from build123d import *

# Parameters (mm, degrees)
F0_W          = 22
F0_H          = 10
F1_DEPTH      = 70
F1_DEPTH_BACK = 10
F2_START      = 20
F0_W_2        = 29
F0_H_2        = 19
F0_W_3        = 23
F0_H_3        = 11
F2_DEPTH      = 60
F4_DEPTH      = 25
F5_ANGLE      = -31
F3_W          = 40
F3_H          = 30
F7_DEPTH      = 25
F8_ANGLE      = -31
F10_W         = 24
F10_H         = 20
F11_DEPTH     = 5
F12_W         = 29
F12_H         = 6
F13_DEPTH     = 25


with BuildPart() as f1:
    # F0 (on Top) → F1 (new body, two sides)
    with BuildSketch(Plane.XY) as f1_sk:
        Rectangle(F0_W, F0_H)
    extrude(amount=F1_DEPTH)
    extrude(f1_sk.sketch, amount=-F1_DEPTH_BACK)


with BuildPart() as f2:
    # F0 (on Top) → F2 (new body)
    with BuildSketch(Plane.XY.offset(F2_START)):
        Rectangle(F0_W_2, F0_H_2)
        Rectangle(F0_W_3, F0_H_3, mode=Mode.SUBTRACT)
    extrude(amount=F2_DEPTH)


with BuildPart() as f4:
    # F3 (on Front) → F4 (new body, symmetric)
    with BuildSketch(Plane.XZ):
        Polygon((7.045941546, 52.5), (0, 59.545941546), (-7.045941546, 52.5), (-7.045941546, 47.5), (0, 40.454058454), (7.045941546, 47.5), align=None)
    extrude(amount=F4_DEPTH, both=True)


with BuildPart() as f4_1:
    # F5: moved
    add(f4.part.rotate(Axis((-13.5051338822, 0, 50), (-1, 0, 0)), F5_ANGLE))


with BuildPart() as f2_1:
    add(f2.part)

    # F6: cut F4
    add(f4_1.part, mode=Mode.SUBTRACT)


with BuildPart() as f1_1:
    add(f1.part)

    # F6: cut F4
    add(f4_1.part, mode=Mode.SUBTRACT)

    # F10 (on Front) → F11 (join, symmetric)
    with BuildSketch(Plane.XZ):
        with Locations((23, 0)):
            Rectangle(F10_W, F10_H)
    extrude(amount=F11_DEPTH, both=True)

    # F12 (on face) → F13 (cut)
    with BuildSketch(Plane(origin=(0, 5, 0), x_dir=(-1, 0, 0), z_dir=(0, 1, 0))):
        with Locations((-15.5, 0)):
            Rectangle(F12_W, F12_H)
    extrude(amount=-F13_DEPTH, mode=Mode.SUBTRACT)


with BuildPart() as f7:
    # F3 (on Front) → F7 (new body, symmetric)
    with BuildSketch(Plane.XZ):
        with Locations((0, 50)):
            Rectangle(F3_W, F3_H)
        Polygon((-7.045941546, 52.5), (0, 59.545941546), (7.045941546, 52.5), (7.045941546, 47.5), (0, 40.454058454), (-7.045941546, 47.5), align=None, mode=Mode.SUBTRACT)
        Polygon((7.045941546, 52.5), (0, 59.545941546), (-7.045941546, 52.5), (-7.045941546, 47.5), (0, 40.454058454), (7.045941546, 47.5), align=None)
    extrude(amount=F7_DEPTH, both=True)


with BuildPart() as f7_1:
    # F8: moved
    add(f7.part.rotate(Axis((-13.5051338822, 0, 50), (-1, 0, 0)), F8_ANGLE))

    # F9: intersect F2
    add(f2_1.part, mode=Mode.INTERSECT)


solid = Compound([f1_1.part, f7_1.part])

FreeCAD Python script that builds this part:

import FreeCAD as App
import Part
import Sketcher
from FreeCAD import Vector
Q = App.Units.Quantity

doc = App.newDocument("Part")
body = doc.addObject("PartDesign::Body", "Body")

# Sketch on XY plane
sketch1 = body.newObject("Sketcher::SketchObject", "Sketch")
sketch1.AttachmentSupport = (doc.getObject("XY_Plane"), [""])
sketch1.MapMode = "FlatFace"
sketch1.addGeometry([
    Part.LineSegment(Vector(-11, 5, 0), Vector(-11, -5, 0)),
    Part.LineSegment(Vector(-11, -5, 0), Vector(11, -5, 0)),
    Part.LineSegment(Vector(11, -5, 0), Vector(11, 5, 0)),
    Part.LineSegment(Vector(11, 5, 0), Vector(-11, 5, 0)),
], False)
sketch1.addConstraint([
    Sketcher.Constraint("Coincident", 0, 2, 1, 1),
    Sketcher.Constraint("Coincident", 1, 2, 2, 1),
    Sketcher.Constraint("Coincident", 2, 2, 3, 1),
    Sketcher.Constraint("Coincident", 3, 2, 0, 1),
    Sketcher.Constraint("Vertical", 0),
    Sketcher.Constraint("Horizontal", 1),
    Sketcher.Constraint("Vertical", 2),
    Sketcher.Constraint("Horizontal", 3),
    Sketcher.Constraint("Symmetric", 0, 2, 2, 2, -1, 1),
    Sketcher.Constraint("DistanceX", 1, 1, 1, 2, Q("22 mm")),
    Sketcher.Constraint("DistanceY", 0, 2, 0, 1, Q("10 mm")),
])
pad1 = body.newObject("PartDesign::Pad", "Pad")
pad1.Profile = sketch1
pad1.Type = "TwoLengths"
pad1.Length = 70
pad1.Length2 = 10
body2 = doc.addObject("PartDesign::Body", "Body001")

# Sketch on XY plane
sketch2 = body2.newObject("Sketcher::SketchObject", "Sketch001")
sketch2.AttachmentSupport = (doc.getObject("XY_Plane001"), [""])
sketch2.MapMode = "FlatFace"
sketch2.AttachmentOffset = App.Placement(Vector(0, 0, 20), App.Rotation())
sketch2.addGeometry([
    Part.LineSegment(Vector(-14, 10, 0), Vector(-14, -10, 0)),  # 0
    Part.LineSegment(Vector(-14, -10, 0), Vector(14, -10, 0)),  # 1
    Part.LineSegment(Vector(14, -10, 0), Vector(14, 10, 0)),  # 2
    Part.LineSegment(Vector(14, 10, 0), Vector(-14, 10, 0)),  # 3
    Part.LineSegment(Vector(12, -6, 0), Vector(-12, -6, 0)),  # 4
    Part.LineSegment(Vector(-12, -6, 0), Vector(-12, 6, 0)),  # 5
    Part.LineSegment(Vector(-12, 6, 0), Vector(12, 6, 0)),  # 6
    Part.LineSegment(Vector(12, 6, 0), Vector(12, -6, 0)),  # 7
], False)
sketch2.addConstraint([
    Sketcher.Constraint("Coincident", 0, 2, 1, 1),
    Sketcher.Constraint("Coincident", 1, 2, 2, 1),
    Sketcher.Constraint("Coincident", 2, 2, 3, 1),
    Sketcher.Constraint("Coincident", 3, 2, 0, 1),
    Sketcher.Constraint("Coincident", 4, 2, 5, 1),
    Sketcher.Constraint("Coincident", 5, 2, 6, 1),
    Sketcher.Constraint("Coincident", 6, 2, 7, 1),
    Sketcher.Constraint("Coincident", 7, 2, 4, 1),
    Sketcher.Constraint("Vertical", 0),
    Sketcher.Constraint("Horizontal", 1),
    Sketcher.Constraint("Vertical", 2),
    Sketcher.Constraint("Horizontal", 3),
    Sketcher.Constraint("Horizontal", 4),
    Sketcher.Constraint("Vertical", 5),
    Sketcher.Constraint("Horizontal", 6),
    Sketcher.Constraint("Vertical", 7),
    Sketcher.Constraint("Symmetric", 0, 2, 2, 2, -1, 1),
    Sketcher.Constraint("Symmetric", 4, 2, 6, 2, -1, 1),
    Sketcher.Constraint("DistanceX", 1, 1, 1, 2, Q("29 mm")),
    Sketcher.Constraint("DistanceX", 4, 2, 4, 1, Q("23 mm")),
    Sketcher.Constraint("DistanceY", 0, 2, 0, 1, Q("19 mm")),
    Sketcher.Constraint("DistanceY", 5, 1, 5, 2, Q("11 mm")),
])
pad2 = body2.newObject("PartDesign::Pad", "Pad001")
pad2.Profile = sketch2
pad2.Length = 60
body3 = doc.addObject("PartDesign::Body", "Body002")

# Sketch on XZ plane
sketch3 = body3.newObject("Sketcher::SketchObject", "Sketch002")
sketch3.AttachmentSupport = (doc.getObject("XZ_Plane002"), [""])
sketch3.MapMode = "FlatFace"
sketch3.addGeometry([
    Part.LineSegment(Vector(7, 52, 0), Vector(0, 60, 0)),  # 0
    Part.LineSegment(Vector(0, 60, 0), Vector(-7, 52, 0)),  # 1
    Part.LineSegment(Vector(-7, 52, 0), Vector(-7, 48, 0)),  # 2
    Part.LineSegment(Vector(-7, 48, 0), Vector(0, 40, 0)),  # 3
    Part.LineSegment(Vector(0, 40, 0), Vector(7, 48, 0)),  # 4
    Part.LineSegment(Vector(7, 48, 0), Vector(7, 52, 0)),  # 5
], False)
sketch3.addConstraint([
    Sketcher.Constraint("Coincident", 0, 2, 1, 1),
    Sketcher.Constraint("Coincident", 1, 2, 2, 1),
    Sketcher.Constraint("Coincident", 2, 2, 3, 1),
    Sketcher.Constraint("Coincident", 3, 2, 4, 1),
    Sketcher.Constraint("Coincident", 4, 2, 5, 1),
    Sketcher.Constraint("Coincident", 5, 2, 0, 1),
    Sketcher.Constraint("Vertical", 2),
    Sketcher.Constraint("Vertical", 5),
    Sketcher.Constraint("Symmetric", 2, 2, 4, 2, -2),
    Sketcher.Constraint("PointOnObject", 0, 2, -2),
    Sketcher.Constraint("PointOnObject", 3, 2, -2),
    Sketcher.Constraint("Perpendicular", 0, 1),
    Sketcher.Constraint("Perpendicular", 1, 3),
    Sketcher.Constraint("Perpendicular", 3, 4),
    Sketcher.Constraint("DistanceY", 2, 2, 2, 1, Q("5 mm")),
    Sketcher.Constraint("DistanceY", -1, 1, 1, 2, Q("52.5 mm")),
    Sketcher.Constraint("DistanceY", -1, 1, 0, 2, Q("59.545942 mm")),
])
pad3 = body3.newObject("PartDesign::Pad", "Pad002")
pad3.Profile = sketch3
pad3.Length = 50
pad3.Midplane = True
body4 = doc.addObject("PartDesign::Body", "Body003")
doc.recompute()

body3.Placement = App.Placement(Vector(0, 25.751904, 7.141635), App.Rotation(Vector(-1, 0, 0), 329))
boolean = body4.newObject("PartDesign::Boolean", "Boolean")
boolean.Type = "Fuse"
boolean.addObjects([body3])
doc.recompute()

body5 = doc.addObject("PartDesign::Body", "Body004")
body5.BaseFeature = body4
boolean2 = body2.newObject("PartDesign::Boolean", "Boolean001")
boolean2.Type = "Cut"
boolean2.addObjects([body5])
doc.recompute()

boolean3 = body.newObject("PartDesign::Boolean", "Boolean002")
boolean3.Type = "Cut"
boolean3.addObjects([body4])

# Sketch on XZ plane
sketch4 = body.newObject("Sketcher::SketchObject", "Sketch003")
sketch4.AttachmentSupport = (doc.getObject("XZ_Plane"), [""])
sketch4.MapMode = "FlatFace"
sketch4.addGeometry([
    Part.LineSegment(Vector(11, 10, 0), Vector(11, -10, 0)),
    Part.LineSegment(Vector(11, -10, 0), Vector(35, -10, 0)),
    Part.LineSegment(Vector(35, -10, 0), Vector(35, 10, 0)),
    Part.LineSegment(Vector(35, 10, 0), Vector(11, 10, 0)),
], False)
sketch4.addConstraint([
    Sketcher.Constraint("Coincident", 0, 2, 1, 1),
    Sketcher.Constraint("Coincident", 1, 2, 2, 1),
    Sketcher.Constraint("Coincident", 2, 2, 3, 1),
    Sketcher.Constraint("Coincident", 3, 2, 0, 1),
    Sketcher.Constraint("Vertical", 0),
    Sketcher.Constraint("Horizontal", 1),
    Sketcher.Constraint("Vertical", 2),
    Sketcher.Constraint("Horizontal", 3),
    Sketcher.Constraint("DistanceX", 1, 1, 1, 2, Q("24 mm")),
    Sketcher.Constraint("DistanceY", 0, 2, 0, 1, Q("20 mm")),
    Sketcher.Constraint("DistanceX", -1, 1, 0, 2, Q("11 mm")),
    Sketcher.Constraint("DistanceY", 0, 2, -1, 1, Q("10 mm")),
])
pad4 = body.newObject("PartDesign::Pad", "Pad003")
pad4.Profile = sketch4
pad4.Length = 10
pad4.Midplane = True

# Sketch on XZ plane
sketch5 = body.newObject("Sketcher::SketchObject", "Sketch004")
sketch5.AttachmentSupport = (doc.getObject("XZ_Plane"), [""])
sketch5.MapMode = "FlatFace"
sketch5.AttachmentOffset = App.Placement(Vector(0, 0, -5), App.Rotation())
sketch5.addGeometry([
    Part.LineSegment(Vector(30, 3, 0), Vector(30, -3, 0)),
    Part.LineSegment(Vector(30, -3, 0), Vector(1, -3, 0)),
    Part.LineSegment(Vector(1, -3, 0), Vector(1, 3, 0)),
    Part.LineSegment(Vector(1, 3, 0), Vector(30, 3, 0)),
], False)
sketch5.addConstraint([
    Sketcher.Constraint("Coincident", 0, 2, 1, 1),
    Sketcher.Constraint("Coincident", 1, 2, 2, 1),
    Sketcher.Constraint("Coincident", 2, 2, 3, 1),
    Sketcher.Constraint("Coincident", 3, 2, 0, 1),
    Sketcher.Constraint("Vertical", 0),
    Sketcher.Constraint("Horizontal", 1),
    Sketcher.Constraint("Vertical", 2),
    Sketcher.Constraint("Horizontal", 3),
    Sketcher.Constraint("DistanceX", 1, 2, 1, 1, Q("29 mm")),
    Sketcher.Constraint("DistanceY", 0, 2, 0, 1, Q("6 mm")),
    Sketcher.Constraint("DistanceX", -1, 1, 0, 2, Q("30 mm")),
    Sketcher.Constraint("DistanceY", 0, 2, -1, 1, Q("3 mm")),
])
pocket1 = body.newObject("PartDesign::Pocket", "Pocket")
pocket1.Profile = sketch5
pocket1.Length = 25
pocket1.Reversed = True
body6 = doc.addObject("PartDesign::Body", "Body005")

# Sketch on XZ plane
sketch6 = body6.newObject("Sketcher::SketchObject", "Sketch005")
sketch6.AttachmentSupport = (doc.getObject("XZ_Plane005"), [""])
sketch6.MapMode = "FlatFace"
sketch6.addGeometry([
    Part.LineSegment(Vector(-20, 65, 0), Vector(-20, 35, 0)),
    Part.LineSegment(Vector(-20, 35, 0), Vector(20, 35, 0)),
    Part.LineSegment(Vector(20, 35, 0), Vector(20, 65, 0)),
    Part.LineSegment(Vector(20, 65, 0), Vector(-20, 65, 0)),
], False)
sketch6.addConstraint([
    Sketcher.Constraint("Coincident", 0, 2, 1, 1),
    Sketcher.Constraint("Coincident", 1, 2, 2, 1),
    Sketcher.Constraint("Coincident", 2, 2, 3, 1),
    Sketcher.Constraint("Coincident", 3, 2, 0, 1),
    Sketcher.Constraint("Vertical", 0),
    Sketcher.Constraint("Horizontal", 1),
    Sketcher.Constraint("Vertical", 2),
    Sketcher.Constraint("Horizontal", 3),
    Sketcher.Constraint("DistanceX", 1, 1, 1, 2, Q("40 mm")),
    Sketcher.Constraint("DistanceY", 0, 2, 0, 1, Q("30 mm")),
    Sketcher.Constraint("DistanceX", 0, 2, -1, 1, Q("20 mm")),
    Sketcher.Constraint("DistanceY", -1, 1, 0, 2, Q("35 mm")),
])
pad5 = body6.newObject("PartDesign::Pad", "Pad004")
pad5.Profile = sketch6
pad5.Length = 50
pad5.Midplane = True
body7 = doc.addObject("PartDesign::Body", "Body006")
doc.recompute()

body6.Placement = App.Placement(Vector(0, 25.751904, 7.141635), App.Rotation(Vector(-1, 0, 0), 329))
boolean4 = body7.newObject("PartDesign::Boolean", "Boolean003")
boolean4.Type = "Fuse"
boolean4.addObjects([body6])
doc.recompute()

boolean5 = body7.newObject("PartDesign::Boolean", "Boolean004")
boolean5.Type = "Common"
boolean5.addObjects([body2])

doc.recompute()
